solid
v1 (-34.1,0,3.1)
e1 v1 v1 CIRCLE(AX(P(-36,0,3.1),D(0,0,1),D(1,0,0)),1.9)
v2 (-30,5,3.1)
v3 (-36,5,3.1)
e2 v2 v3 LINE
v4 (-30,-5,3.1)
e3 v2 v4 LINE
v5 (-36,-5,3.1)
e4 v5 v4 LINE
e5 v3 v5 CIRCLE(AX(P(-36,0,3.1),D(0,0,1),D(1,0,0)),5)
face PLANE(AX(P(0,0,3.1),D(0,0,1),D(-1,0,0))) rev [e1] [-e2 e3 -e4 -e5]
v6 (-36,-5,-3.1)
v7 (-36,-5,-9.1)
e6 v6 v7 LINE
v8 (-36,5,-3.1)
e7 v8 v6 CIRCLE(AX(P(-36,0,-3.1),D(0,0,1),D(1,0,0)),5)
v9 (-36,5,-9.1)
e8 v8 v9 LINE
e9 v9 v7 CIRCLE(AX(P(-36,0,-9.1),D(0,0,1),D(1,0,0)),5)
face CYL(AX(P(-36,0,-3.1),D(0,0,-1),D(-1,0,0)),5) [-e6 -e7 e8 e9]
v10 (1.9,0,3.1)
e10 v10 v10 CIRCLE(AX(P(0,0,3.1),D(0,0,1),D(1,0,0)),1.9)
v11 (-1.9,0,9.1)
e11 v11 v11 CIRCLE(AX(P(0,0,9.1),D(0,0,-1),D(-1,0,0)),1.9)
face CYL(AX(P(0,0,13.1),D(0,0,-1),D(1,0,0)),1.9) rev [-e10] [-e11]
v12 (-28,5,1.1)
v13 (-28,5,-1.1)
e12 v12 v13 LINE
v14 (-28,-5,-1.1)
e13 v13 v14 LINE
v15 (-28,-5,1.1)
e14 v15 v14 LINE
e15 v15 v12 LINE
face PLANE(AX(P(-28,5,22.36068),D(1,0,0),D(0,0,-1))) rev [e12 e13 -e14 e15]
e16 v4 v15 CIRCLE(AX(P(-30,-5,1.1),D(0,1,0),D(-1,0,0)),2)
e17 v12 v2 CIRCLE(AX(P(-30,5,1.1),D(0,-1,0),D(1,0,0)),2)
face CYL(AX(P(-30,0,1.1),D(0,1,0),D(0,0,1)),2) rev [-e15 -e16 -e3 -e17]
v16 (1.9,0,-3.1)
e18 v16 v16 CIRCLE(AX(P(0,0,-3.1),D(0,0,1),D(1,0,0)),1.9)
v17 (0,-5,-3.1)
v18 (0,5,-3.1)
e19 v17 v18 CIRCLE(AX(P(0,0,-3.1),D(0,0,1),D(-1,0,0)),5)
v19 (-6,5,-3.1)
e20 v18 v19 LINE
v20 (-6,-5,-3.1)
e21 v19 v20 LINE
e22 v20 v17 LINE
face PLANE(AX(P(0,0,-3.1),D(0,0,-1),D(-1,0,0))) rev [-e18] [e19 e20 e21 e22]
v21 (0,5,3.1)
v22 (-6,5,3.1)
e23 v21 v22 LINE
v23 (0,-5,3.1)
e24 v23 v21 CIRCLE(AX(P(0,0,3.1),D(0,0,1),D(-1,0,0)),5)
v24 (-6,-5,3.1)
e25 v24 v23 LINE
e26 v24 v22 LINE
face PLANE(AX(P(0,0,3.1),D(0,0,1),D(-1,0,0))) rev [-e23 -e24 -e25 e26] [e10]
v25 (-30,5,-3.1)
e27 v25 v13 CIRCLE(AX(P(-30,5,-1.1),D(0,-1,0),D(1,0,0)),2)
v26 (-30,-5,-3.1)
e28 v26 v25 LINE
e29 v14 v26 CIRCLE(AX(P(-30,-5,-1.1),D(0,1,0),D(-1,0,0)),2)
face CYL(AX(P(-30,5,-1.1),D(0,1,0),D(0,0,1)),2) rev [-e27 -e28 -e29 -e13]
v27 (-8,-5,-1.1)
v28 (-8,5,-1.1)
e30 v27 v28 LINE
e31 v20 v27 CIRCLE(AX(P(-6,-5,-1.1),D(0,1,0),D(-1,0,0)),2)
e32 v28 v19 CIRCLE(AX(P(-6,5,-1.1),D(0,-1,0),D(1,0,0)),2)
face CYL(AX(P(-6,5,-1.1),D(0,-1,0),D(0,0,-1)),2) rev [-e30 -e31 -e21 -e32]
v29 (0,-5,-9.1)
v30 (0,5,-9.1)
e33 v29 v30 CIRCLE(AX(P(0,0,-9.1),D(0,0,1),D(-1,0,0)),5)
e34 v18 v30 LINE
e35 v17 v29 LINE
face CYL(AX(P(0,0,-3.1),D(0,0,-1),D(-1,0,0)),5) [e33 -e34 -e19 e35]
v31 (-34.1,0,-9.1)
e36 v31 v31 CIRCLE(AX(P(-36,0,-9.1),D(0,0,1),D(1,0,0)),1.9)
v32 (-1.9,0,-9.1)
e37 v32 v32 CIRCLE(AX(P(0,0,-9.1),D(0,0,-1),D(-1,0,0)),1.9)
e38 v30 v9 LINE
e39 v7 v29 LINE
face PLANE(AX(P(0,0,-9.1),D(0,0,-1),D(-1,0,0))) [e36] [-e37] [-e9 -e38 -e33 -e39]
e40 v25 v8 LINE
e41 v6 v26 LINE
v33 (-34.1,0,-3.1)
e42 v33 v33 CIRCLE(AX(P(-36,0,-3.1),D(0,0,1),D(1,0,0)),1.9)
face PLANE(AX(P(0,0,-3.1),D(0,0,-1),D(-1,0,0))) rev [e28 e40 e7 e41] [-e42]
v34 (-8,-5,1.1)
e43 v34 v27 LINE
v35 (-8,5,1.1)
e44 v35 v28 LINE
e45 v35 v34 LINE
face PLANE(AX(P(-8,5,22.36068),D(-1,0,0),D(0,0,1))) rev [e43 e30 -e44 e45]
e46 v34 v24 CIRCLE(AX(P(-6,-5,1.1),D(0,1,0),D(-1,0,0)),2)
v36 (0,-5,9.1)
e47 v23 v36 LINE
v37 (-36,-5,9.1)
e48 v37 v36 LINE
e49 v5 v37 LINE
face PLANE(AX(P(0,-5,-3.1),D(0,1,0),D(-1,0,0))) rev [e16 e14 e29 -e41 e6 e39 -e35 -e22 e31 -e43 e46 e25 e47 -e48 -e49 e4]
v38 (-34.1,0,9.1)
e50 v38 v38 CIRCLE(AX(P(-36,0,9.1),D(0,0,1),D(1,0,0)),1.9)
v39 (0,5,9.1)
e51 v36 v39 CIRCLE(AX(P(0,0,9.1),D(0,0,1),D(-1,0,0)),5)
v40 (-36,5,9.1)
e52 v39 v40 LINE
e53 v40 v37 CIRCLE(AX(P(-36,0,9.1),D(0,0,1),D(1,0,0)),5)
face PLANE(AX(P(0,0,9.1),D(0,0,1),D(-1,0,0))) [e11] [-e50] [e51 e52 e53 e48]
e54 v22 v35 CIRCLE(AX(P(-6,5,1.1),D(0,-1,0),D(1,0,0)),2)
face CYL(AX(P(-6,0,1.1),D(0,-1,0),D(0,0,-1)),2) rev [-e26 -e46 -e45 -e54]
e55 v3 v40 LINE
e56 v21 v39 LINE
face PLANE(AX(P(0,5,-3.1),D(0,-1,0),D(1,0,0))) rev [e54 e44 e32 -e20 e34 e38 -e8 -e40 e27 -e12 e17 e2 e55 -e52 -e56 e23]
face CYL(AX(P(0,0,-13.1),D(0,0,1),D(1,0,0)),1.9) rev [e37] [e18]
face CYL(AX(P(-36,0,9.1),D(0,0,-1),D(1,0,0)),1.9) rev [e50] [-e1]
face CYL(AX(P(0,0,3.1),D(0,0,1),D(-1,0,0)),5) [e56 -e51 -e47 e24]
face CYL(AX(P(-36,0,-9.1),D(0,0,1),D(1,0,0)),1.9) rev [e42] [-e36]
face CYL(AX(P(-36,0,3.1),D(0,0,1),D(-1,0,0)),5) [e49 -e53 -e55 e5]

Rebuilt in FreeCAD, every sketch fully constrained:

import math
import FreeCAD as App
import Part
import Sketcher
from FreeCAD import Vector


def edges_at(feature, points):
    """Names of the edges that pass closest to the given points."""
    edges = feature.Shape.Edges
    near = lambda p: min(range(len(edges)), key=lambda i: edges[i].distToShape(Part.Vertex(*p))[0])
    return sorted({f"Edge{near(p) + 1}" for p in points})

doc = App.newDocument("Part")
params = doc.addObject("Spreadsheet::Sheet", "Params")
for row, (alias, value) in enumerate([
    ("sketch1_radius", "5 mm"),
    ("sketch1_width", "36 mm"),
    ("pad1_length", "6 mm"),
    ("sketch2_diameter", "3.8 mm"),
    ("sketch3_diameter", "3.8 mm"),
    ("pocket2_length", "10 mm"),
    ("sketch4_width", "20 mm"),
    ("sketch4_height", "10 mm"),
    ("pad2_length", "3.1 mm"),
    ("fillet_radius", "2 mm"),
], start=1):
    params.set(f"A{row}", alias)
    params.set(f"B{row}", "=" + value)
    params.setAlias(f"B{row}", alias)

body = doc.addObject("PartDesign::Body", "Body")

sketch1 = body.newObject("Sketcher::SketchObject", "Sketch")
sketch1.AttachmentSupport = (doc.getObject("XY_Plane"), [""])
sketch1.MapMode = "FlatFace"
sketch1.AttachmentOffset = App.Placement(Vector(0, 0, -9.1), App.Rotation())
sketch1.addGeometry([
    Part.LineSegment(Vector(0, 5, 0), Vector(-36, 5, 0)),
    Part.ArcOfCircle(Part.Circle(Vector(-36, 0, 0), Vector(0, 0, 1), 5), math.radians(90), math.radians(270)),
    Part.LineSegment(Vector(-36, -5, 0), Vector(0, -5, 0)),
    Part.ArcOfCircle(Part.Circle(Vector(0, 0, 0), Vector(0, 0, 1), 5), math.radians(-90), math.radians(90)),
], False)
sketch1.addConstraint([
    Sketcher.Constraint("Tangent", 0, 2, 1, 1),
    Sketcher.Constraint("Tangent", 1, 2, 2, 1),
    Sketcher.Constraint("Tangent", 2, 2, 3, 1),
    Sketcher.Constraint("Tangent", 3, 2, 0, 1),
    Sketcher.Constraint("Horizontal", 0),
    Sketcher.Constraint("Horizontal", 2),
    Sketcher.Constraint("Coincident", 3, 3, -1, 1),
    Sketcher.Constraint("Radius", 1, 5.0),
    Sketcher.Constraint("DistanceX", 0, 2, 0, 1, 36.0),
])
sketch1.setExpression("Constraints[7]", "Params.sketch1_radius")
sketch1.setExpression("Constraints[8]", "Params.sketch1_width")
pad1 = body.newObject("PartDesign::Pad", "Pad")
pad1.Profile = sketch1
pad1.setExpression("Length", "Params.pad1_length")

sketch2 = body.newObject("Sketcher::SketchObject", "Sketch001")
sketch2.AttachmentSupport = (doc.getObject("XY_Plane"), [""])
sketch2.MapMode = "FlatFace"
sketch2.AttachmentOffset = App.Placement(Vector(0, 0, -3.1), App.Rotation())
sketch2.addGeometry(Part.Circle(Vector(-36, 0, 0), Vector(0, 0, 1), 1.9), False)
sketch2.addConstraint([
    Sketcher.Constraint("PointOnObject", 0, 3, -1),
    Sketcher.Constraint("Diameter", 0, 3.8),
    Sketcher.Constraint("DistanceX", 0, 3, -1, 1, 36.0),
])
sketch2.setExpression("Constraints[1]", "Params.sketch2_diameter")
pocket1 = body.newObject("PartDesign::Pocket", "Pocket")
pocket1.Profile = sketch2
pocket1.Type = "ThroughAll"

sketch3 = body.newObject("Sketcher::SketchObject", "Sketch002")
sketch3.AttachmentSupport = (doc.getObject("XY_Plane"), [""])
sketch3.MapMode = "FlatFace"
sketch3.AttachmentOffset = App.Placement(Vector(0, 0, -3.1), App.Rotation())
sketch3.addGeometry(Part.Circle(Vector(0, 0, 0), Vector(0, 0, 1), 1.9), False)
sketch3.addConstraint([
    Sketcher.Constraint("Coincident", 0, 3, -1, 1),
    Sketcher.Constraint("Diameter", 0, 3.8),
])
sketch3.setExpression("Constraints[1]", "Params.sketch3_diameter")
pocket2 = body.newObject("PartDesign::Pocket", "Pocket001")
pocket2.Profile = sketch3
pocket2.setExpression("Length", "Params.pocket2_length")

sketch4 = body.newObject("Sketcher::SketchObject", "Sketch003")
sketch4.AttachmentSupport = (doc.getObject("XY_Plane"), [""])
sketch4.MapMode = "FlatFace"
sketch4.AttachmentOffset = App.Placement(Vector(0, 0, -3.1), App.Rotation())
sketch4.addGeometry([
    Part.LineSegment(Vector(-28, 5, 0), Vector(-28, -5, 0)),
    Part.LineSegment(Vector(-28, -5, 0), Vector(-8, -5, 0)),
    Part.LineSegment(Vector(-8, -5, 0), Vector(-8, 5, 0)),
    Part.LineSegment(Vector(-8, 5, 0), Vector(-28, 5, 0)),
], False)
sketch4.addConstraint([
    Sketcher.Constraint("Coincident", 0, 2, 1, 1),
    Sketcher.Constraint("Coincident", 1, 2, 2, 1),
    Sketcher.Constraint("Coincident", 2, 2, 3, 1),
    Sketcher.Constraint("Coincident", 3, 2, 0, 1),
    Sketcher.Constraint("Vertical", 0),
    Sketcher.Constraint("Horizontal", 1),
    Sketcher.Constraint("Vertical", 2),
    Sketcher.Constraint("Horizontal", 3),
    Sketcher.Constraint("DistanceX", 1, 1, 1, 2, 20.0),
    Sketcher.Constraint("DistanceY", 0, 2, 0, 1, 10.0),
    Sketcher.Constraint("DistanceX", 0, 2, -1, 1, 28.0),
    Sketcher.Constraint("DistanceY", 0, 2, -1, 1, 5.0),
])
sketch4.setExpression("Constraints[8]", "Params.sketch4_width")
sketch4.setExpression("Constraints[9]", "Params.sketch4_height")
pad2 = body.newObject("PartDesign::Pad", "Pad001")
pad2.Profile = sketch4
pad2.setExpression("Length", "Params.pad2_length")
doc.recompute()

mirrored = body.newObject("PartDesign::Mirrored", "Mirrored")
mirrored.Originals = [pad1, pocket1, pocket2, pad2]
mirrored.MirrorPlane = (doc.getObject("XY_Plane"), [""])
body.Tip = mirrored
doc.recompute()

fillet = body.newObject("PartDesign::Fillet", "Fillet")
fillet.Base = (mirrored, edges_at(mirrored, [
    (-8, 0, -3.1),
    (-28, 0, -3.1),
    (-8, 0, 3.1),
    (-28, 0, 3.1),
]))
fillet.setExpression("Radius", "Params.fillet_radius")

doc.recompute()
